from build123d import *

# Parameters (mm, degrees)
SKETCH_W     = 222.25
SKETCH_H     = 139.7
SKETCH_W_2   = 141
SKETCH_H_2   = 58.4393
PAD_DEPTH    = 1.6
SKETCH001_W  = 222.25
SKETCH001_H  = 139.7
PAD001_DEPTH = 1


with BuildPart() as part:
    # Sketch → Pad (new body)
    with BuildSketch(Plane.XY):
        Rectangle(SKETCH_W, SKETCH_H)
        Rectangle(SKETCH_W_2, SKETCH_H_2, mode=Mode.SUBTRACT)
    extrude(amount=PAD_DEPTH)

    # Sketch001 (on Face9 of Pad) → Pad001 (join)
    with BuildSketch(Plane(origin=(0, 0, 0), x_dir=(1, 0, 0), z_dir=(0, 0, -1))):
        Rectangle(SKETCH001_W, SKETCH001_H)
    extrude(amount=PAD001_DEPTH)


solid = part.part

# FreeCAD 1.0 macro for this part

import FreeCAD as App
import Part
import Sketcher


def add_polygon(sketch, points):
    """Adds a closed chain of lines whose ends are joined by coincident constraints."""
    first, n = sketch.GeometryCount, len(points)
    for a, b in zip(points, points[1:] + points[:1]):
        sketch.addGeometry(Part.LineSegment(App.Vector(*a, 0), App.Vector(*b, 0)), False)
    for i in range(n):
        sketch.addConstraint(Sketcher.Constraint("Coincident", first + i, 2, first + (i + 1) % n, 1))

doc = App.newDocument("Part")
body = doc.addObject("PartDesign::Body", "Body")

# Sketch on XY plane
sketch1 = doc.addObject("Sketcher::SketchObject", "Sketch")
body.addObject(sketch1)
sketch1.AttachmentSupport = (doc.XY_Plane, [""])
sketch1.MapMode = "FlatFace"
add_polygon(sketch1, [(-111.125, 69.85), (-111.125, -69.85), (111.125, -69.85), (111.125, 69.85)])  # lines 0-3
add_polygon(sketch1, [(70.5, -29.21965), (-70.5, -29.21965), (-70.5, 29.21965), (70.5, 29.21965)])  # lines 4-7
sketch1.addConstraint([
    Sketcher.Constraint("Vertical", 0),
    Sketcher.Constraint("Horizontal", 1),
    Sketcher.Constraint("Vertical", 2),
    Sketcher.Constraint("Horizontal", 3),
    Sketcher.Constraint("Horizontal", 4),
    Sketcher.Constraint("Vertical", 5),
    Sketcher.Constraint("Horizontal", 6),
    Sketcher.Constraint("Vertical", 7),
    Sketcher.Constraint("Symmetric", 0, 2, 2, 2, -1, 1),
    Sketcher.Constraint("Symmetric", 4, 2, 6, 2, -1, 1),
    Sketcher.Constraint("DistanceX", 4, 2, 4, 1, 141.0),
    Sketcher.Constraint("DistanceY", 0, 2, 0, 1, 139.7),
    Sketcher.Constraint("DistanceX", 1, 1, 1, 2, 222.25),
    Sketcher.Constraint("DistanceY", 5, 1, 5, 2, 58.4393),
])
pad1 = doc.addObject("PartDesign::Pad", "Pad")
body.addObject(pad1)
pad1.Profile = sketch1
pad1.Length = 1.6

# Sketch on XY plane
sketch2 = doc.addObject("Sketcher::SketchObject", "Sketch001")
body.addObject(sketch2)
sketch2.AttachmentSupport = (doc.XY_Plane, [""])
sketch2.MapMode = "FlatFace"
add_polygon(sketch2, [(-111.125, -69.85), (-111.125, 69.85), (111.125, 69.85), (111.125, -69.85)])  # lines 0-3
sketch2.addConstraint([
    Sketcher.Constraint("Vertical", 0),
    Sketcher.Constraint("Horizontal", 1),
    Sketcher.Constraint("Vertical", 2),
    Sketcher.Constraint("Horizontal", 3),
    Sketcher.Constraint("Symmetric", 0, 2, 2, 2, -1, 1),
    Sketcher.Constraint("DistanceY", 0, 1, 0, 2, 139.7),
    Sketcher.Constraint("DistanceX", 1, 1, 1, 2, 222.25),
])
pad2 = doc.addObject("PartDesign::Pad", "Pad001")
body.addObject(pad2)
pad2.Profile = sketch2
pad2.Length = 1
pad2.Reversed = True

doc.recompute()
